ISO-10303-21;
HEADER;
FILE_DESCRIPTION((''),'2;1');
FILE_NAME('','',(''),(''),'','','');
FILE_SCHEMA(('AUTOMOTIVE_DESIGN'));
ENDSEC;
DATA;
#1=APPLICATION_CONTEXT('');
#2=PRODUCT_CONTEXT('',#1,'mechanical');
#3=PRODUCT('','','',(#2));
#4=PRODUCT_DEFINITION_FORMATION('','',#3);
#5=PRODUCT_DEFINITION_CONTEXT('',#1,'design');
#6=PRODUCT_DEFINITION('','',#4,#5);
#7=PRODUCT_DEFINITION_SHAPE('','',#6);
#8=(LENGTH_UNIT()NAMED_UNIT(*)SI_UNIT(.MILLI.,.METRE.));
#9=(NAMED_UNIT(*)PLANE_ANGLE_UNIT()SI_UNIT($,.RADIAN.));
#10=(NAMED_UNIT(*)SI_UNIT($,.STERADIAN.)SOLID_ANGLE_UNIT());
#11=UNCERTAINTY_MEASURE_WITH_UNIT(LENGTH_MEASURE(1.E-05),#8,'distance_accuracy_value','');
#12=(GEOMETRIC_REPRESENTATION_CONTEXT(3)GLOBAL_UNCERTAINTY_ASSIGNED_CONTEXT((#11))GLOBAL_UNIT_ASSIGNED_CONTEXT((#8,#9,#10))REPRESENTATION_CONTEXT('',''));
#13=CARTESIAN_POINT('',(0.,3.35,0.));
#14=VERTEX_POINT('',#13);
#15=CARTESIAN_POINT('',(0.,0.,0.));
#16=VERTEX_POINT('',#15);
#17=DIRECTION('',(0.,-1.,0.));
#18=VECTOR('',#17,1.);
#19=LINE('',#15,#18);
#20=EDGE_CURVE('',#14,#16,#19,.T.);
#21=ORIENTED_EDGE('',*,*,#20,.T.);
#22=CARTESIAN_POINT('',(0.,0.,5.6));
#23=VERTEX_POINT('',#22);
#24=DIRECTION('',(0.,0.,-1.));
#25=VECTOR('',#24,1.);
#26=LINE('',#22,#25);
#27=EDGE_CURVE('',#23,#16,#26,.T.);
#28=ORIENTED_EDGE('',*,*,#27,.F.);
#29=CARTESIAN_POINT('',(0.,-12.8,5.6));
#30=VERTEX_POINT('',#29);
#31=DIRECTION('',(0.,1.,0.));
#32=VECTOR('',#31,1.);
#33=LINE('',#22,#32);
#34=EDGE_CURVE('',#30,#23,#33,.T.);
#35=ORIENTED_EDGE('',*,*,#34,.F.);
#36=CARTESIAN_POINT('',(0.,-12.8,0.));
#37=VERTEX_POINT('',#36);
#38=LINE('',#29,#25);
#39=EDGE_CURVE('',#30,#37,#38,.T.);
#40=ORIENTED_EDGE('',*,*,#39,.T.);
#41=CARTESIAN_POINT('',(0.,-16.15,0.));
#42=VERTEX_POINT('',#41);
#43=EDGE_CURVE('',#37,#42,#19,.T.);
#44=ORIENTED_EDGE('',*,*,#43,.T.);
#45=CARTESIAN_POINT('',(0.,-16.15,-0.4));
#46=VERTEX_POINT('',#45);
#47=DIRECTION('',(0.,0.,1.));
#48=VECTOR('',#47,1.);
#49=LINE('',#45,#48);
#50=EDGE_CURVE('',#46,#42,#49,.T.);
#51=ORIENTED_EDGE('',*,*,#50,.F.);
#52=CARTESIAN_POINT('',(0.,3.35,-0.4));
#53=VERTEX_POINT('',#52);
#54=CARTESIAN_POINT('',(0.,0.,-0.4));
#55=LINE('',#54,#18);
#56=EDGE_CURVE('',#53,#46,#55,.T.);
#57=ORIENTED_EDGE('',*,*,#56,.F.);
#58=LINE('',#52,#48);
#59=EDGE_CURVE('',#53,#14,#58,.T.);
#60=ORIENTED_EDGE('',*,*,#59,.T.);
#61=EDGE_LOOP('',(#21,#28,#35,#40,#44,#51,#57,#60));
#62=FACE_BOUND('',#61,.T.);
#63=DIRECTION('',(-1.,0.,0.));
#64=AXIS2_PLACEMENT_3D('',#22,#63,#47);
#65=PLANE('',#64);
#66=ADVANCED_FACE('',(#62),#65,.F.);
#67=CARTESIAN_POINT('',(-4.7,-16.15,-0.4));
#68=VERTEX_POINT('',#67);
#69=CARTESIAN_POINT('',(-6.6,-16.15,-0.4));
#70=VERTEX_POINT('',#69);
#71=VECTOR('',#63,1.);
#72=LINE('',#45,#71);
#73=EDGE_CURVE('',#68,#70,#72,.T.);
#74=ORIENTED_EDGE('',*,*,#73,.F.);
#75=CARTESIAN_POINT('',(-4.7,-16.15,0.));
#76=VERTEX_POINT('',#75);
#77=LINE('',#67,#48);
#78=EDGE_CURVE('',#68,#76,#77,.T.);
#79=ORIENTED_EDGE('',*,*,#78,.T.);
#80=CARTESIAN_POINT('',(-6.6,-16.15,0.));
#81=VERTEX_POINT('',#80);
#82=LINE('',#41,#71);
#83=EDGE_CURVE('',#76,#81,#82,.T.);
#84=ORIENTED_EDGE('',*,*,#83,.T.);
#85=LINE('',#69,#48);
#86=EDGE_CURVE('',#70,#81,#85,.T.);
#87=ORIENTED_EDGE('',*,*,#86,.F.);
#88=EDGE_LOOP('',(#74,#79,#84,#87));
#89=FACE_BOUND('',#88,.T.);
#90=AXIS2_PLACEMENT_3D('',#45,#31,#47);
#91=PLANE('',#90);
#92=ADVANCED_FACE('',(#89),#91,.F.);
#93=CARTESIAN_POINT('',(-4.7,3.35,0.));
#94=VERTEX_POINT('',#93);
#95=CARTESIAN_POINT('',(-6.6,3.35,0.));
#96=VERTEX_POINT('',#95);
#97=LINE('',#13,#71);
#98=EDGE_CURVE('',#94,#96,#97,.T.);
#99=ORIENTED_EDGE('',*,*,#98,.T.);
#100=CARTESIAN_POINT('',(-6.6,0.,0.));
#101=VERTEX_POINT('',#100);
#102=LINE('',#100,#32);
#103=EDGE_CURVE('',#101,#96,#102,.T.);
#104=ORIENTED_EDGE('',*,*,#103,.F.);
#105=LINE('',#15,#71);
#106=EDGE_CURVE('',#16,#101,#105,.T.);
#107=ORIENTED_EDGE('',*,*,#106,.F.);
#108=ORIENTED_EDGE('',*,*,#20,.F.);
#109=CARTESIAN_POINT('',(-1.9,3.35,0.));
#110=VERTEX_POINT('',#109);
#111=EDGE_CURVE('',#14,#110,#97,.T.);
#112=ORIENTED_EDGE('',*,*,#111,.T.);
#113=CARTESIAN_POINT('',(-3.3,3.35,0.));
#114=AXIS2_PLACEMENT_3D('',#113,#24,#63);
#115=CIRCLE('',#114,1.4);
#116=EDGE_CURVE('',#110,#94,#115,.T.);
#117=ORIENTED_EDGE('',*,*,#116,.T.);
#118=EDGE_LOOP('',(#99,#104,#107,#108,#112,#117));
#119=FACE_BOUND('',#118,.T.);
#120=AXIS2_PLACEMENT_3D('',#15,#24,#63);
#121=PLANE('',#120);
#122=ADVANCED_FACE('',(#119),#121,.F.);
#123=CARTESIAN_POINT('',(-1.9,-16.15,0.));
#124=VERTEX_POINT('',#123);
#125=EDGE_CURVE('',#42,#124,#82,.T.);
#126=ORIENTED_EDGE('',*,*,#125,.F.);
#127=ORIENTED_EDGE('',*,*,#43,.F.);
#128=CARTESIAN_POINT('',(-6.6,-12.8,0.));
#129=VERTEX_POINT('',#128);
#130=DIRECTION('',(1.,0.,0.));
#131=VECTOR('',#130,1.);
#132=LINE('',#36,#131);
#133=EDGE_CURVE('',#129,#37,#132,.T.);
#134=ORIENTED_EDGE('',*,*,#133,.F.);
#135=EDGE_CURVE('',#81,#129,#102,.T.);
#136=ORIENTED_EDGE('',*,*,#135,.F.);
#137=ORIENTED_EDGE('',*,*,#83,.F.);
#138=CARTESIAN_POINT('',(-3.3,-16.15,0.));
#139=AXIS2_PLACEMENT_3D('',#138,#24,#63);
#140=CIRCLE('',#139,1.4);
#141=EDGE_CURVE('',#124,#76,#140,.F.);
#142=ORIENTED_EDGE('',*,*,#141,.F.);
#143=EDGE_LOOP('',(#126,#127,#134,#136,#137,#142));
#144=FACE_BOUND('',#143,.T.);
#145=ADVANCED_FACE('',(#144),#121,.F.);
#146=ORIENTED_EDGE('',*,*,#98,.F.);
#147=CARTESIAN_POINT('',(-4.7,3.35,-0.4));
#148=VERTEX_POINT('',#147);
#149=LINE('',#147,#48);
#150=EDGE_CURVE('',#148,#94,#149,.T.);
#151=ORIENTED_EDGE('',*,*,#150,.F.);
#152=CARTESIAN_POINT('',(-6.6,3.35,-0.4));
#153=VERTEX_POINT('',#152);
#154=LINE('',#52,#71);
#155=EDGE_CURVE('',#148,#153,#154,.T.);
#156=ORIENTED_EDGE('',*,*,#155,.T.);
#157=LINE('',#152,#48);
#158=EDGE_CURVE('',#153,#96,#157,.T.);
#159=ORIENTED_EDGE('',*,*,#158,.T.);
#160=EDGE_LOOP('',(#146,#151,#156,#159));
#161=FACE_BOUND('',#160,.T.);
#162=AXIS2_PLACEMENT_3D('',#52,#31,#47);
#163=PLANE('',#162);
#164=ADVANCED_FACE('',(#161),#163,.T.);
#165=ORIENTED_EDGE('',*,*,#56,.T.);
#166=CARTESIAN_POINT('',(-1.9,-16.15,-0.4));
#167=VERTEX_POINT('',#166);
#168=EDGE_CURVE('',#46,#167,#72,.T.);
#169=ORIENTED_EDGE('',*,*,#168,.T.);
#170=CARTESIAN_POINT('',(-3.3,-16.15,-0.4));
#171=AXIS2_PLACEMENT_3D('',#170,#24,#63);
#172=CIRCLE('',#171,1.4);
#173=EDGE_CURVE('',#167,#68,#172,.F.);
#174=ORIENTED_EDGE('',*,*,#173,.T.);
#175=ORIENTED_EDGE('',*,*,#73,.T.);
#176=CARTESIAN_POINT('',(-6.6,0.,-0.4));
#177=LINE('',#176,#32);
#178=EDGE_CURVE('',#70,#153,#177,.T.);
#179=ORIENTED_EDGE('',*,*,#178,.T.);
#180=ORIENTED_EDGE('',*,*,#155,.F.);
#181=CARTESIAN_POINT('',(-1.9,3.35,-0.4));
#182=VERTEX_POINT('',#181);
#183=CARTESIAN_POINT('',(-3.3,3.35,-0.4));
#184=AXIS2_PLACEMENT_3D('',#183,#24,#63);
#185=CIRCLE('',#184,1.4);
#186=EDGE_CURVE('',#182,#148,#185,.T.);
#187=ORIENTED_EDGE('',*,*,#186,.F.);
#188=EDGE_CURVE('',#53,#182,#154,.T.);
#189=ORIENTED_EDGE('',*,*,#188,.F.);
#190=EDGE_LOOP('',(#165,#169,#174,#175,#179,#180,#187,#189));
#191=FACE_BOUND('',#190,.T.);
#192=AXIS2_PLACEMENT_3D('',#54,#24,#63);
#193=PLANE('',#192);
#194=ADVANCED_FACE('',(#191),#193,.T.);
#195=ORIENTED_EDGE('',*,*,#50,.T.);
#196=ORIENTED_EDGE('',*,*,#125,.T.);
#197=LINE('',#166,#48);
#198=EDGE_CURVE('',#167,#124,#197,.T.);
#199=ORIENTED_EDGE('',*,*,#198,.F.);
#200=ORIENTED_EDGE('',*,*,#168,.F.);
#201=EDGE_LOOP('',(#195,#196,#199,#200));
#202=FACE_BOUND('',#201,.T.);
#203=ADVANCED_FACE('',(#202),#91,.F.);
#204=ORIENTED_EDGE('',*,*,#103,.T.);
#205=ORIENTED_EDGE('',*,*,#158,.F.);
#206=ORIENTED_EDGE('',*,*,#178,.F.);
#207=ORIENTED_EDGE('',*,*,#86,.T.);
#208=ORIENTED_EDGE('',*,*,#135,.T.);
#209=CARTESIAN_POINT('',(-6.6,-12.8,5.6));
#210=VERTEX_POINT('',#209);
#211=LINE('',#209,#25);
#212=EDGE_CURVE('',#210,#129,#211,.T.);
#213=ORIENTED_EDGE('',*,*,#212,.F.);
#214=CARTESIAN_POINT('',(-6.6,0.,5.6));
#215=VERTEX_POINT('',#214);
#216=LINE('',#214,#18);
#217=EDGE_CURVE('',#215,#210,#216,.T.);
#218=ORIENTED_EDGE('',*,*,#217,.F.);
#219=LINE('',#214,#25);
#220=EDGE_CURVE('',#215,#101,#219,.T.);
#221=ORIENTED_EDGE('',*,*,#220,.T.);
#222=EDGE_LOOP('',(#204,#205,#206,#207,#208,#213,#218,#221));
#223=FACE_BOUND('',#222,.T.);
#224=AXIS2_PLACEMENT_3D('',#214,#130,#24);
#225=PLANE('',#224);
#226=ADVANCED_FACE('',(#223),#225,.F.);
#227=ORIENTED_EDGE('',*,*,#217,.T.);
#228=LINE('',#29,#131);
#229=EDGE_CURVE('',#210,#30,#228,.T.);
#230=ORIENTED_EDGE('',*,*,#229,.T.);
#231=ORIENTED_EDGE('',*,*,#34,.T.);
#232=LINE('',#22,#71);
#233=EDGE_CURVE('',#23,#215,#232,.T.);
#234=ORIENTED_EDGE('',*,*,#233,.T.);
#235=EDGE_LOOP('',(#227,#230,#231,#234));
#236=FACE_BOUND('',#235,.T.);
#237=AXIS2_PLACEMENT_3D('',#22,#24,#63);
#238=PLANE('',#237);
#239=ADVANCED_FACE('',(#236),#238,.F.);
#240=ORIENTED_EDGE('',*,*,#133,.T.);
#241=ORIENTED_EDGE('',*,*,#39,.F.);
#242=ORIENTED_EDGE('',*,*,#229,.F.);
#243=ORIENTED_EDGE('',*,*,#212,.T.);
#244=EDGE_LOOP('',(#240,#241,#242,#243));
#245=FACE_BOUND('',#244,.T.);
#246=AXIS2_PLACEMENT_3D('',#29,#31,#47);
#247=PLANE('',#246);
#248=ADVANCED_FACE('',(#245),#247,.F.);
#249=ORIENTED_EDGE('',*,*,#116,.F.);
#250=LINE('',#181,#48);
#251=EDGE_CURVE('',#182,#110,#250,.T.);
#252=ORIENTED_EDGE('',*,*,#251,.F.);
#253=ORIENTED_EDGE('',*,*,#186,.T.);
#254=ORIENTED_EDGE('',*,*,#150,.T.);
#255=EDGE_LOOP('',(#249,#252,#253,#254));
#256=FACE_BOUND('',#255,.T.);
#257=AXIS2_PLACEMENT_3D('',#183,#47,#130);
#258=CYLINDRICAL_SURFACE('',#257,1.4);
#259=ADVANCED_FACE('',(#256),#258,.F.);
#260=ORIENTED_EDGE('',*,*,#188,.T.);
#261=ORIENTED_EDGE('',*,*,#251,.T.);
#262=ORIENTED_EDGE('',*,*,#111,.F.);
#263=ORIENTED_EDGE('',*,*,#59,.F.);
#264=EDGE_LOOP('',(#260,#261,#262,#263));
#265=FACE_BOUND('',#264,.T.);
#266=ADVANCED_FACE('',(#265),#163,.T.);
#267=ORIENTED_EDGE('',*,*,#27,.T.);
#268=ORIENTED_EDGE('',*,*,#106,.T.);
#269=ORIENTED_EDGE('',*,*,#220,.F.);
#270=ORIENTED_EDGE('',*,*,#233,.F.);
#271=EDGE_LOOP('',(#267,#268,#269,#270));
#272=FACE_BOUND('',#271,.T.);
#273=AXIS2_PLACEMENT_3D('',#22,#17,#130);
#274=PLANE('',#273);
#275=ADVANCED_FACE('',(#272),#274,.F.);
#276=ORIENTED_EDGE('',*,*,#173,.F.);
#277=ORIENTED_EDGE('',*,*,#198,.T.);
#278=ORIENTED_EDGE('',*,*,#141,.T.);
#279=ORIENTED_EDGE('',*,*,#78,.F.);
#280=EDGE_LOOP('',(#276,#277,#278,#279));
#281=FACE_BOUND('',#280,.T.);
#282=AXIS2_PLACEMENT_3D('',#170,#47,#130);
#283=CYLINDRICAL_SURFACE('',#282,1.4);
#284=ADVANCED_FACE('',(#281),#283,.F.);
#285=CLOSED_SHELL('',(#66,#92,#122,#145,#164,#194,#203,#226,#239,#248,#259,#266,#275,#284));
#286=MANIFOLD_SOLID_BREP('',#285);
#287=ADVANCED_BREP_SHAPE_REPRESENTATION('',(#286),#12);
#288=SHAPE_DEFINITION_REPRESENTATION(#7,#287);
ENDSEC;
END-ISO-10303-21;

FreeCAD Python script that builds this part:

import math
import FreeCAD as App
import Part
import Sketcher

V = App.Vector
Q = App.Units.Quantity


def add_polygon(sketch, points):
    """Adds a closed chain of lines whose ends are joined by coincident constraints."""
    first, n = sketch.GeometryCount, len(points)
    for a, b in zip(points, points[1:] + points[:1]):
        sketch.addGeometry(Part.LineSegment(App.Vector(*a, 0), App.Vector(*b, 0)), False)
    for i in range(n):
        sketch.addConstraint(Sketcher.Constraint("Coincident", first + i, 2, first + (i + 1) % n, 1))

doc = App.newDocument("Part")
body = doc.addObject("PartDesign::Body", "Body")

# Sketch on XY plane
sketch1 = body.newObject("Sketcher::SketchObject", "Sketch")
sketch1.AttachmentSupport = (doc.getObject("XY_Plane"), [""])
sketch1.MapMode = "FlatFace"
add_polygon(sketch1, [(-6.6, 0), (-6.6, -12.8), (0, -12.8), (0, 0)])  # lines 0-3
sketch1.addConstraint([
    Sketcher.Constraint("Vertical", 0),
    Sketcher.Constraint("Horizontal", 1),
    Sketcher.Constraint("Vertical", 2),
    Sketcher.Constraint("Horizontal", 3),
    Sketcher.Constraint("Coincident", 2, 2, -1, 1),
    Sketcher.Constraint("DistanceX", 1, 1, 1, 2, Q("6.6 mm")),
    Sketcher.Constraint("DistanceY", 0, 2, 0, 1, Q("12.8 mm")),
])
pad1 = body.newObject("PartDesign::Pad", "Pad")
pad1.Profile = sketch1
pad1.Length = 5.6

# Sketch on XY plane
sketch2 = body.newObject("Sketcher::SketchObject", "Sketch001")
sketch2.AttachmentSupport = (doc.getObject("XY_Plane"), [""])
sketch2.MapMode = "FlatFace"
sketch2.addGeometry([
    Part.LineSegment(V(0, -16.15, 0), V(-1.9, -16.15, 0)),  # 0
    Part.ArcOfCircle(Part.Circle(V(-3.3, -16.15, 0), V(0, 0, 1), 1.4), math.radians(0), math.radians(180)),  # 1
    Part.LineSegment(V(-4.7, -16.15, 0), V(-6.6, -16.15, 0)),  # 2
    Part.LineSegment(V(-6.6, -16.15, 0), V(-6.6, 3.35, 0)),  # 3
    Part.LineSegment(V(-6.6, 3.35, 0), V(-4.7, 3.35, 0)),  # 4
    Part.ArcOfCircle(Part.Circle(V(-3.3, 3.35, 0), V(0, 0, 1), 1.4), math.radians(180), math.radians(360)),  # 5
    Part.LineSegment(V(-1.9, 3.35, 0), V(0, 3.35, 0)),  # 6
    Part.LineSegment(V(0, 3.35, 0), V(0, -16.15, 0)),  # 7
], False)
sketch2.addConstraint([
    Sketcher.Constraint("Coincident", 0, 2, 1, 1),
    Sketcher.Constraint("Coincident", 1, 2, 2, 1),
    Sketcher.Constraint("Coincident", 2, 2, 3, 1),
    Sketcher.Constraint("Coincident", 3, 2, 4, 1),
    Sketcher.Constraint("Coincident", 4, 2, 5, 1),
    Sketcher.Constraint("Coincident", 5, 2, 6, 1),
    Sketcher.Constraint("Coincident", 6, 2, 7, 1),
    Sketcher.Constraint("Coincident", 7, 2, 0, 1),
    Sketcher.Constraint("Horizontal", 0),
    Sketcher.Constraint("Horizontal", 2),
    Sketcher.Constraint("Vertical", 3),
    Sketcher.Constraint("Horizontal", 4),
    Sketcher.Constraint("Horizontal", 6),
    Sketcher.Constraint("Vertical", 7),
    Sketcher.Constraint("Equal", 1, 5),
    Sketcher.Constraint("PointOnObject", 6, 2, -2),
    Sketcher.Constraint("Horizontal", 1, 3, 0, 2),
    Sketcher.Constraint("Horizontal", 0, 2, 1, 2),
    Sketcher.Constraint("Horizontal", 5, 3, 3, 2),
    Sketcher.Constraint("Horizontal", 4, 2, 5, 2),
    Sketcher.Constraint("Vertical", 1, 3, 5, 3),
    Sketcher.Constraint("Equal", 0, 2),
    Sketcher.Constraint("Radius", 1, Q("1.4 mm")),
    Sketcher.Constraint("DistanceX", 0, 2, 0, 1, Q("1.9 mm")),
    Sketcher.Constraint("DistanceY", 3, 1, 3, 2, Q("19.5 mm")),
    Sketcher.Constraint("DistanceY", 1, 3, -1, 1, Q("16.15 mm")),
])
pad2 = body.newObject("PartDesign::Pad", "Pad001")
pad2.Profile = sketch2
pad2.Length = 0.4
pad2.Reversed = True

doc.recompute()
